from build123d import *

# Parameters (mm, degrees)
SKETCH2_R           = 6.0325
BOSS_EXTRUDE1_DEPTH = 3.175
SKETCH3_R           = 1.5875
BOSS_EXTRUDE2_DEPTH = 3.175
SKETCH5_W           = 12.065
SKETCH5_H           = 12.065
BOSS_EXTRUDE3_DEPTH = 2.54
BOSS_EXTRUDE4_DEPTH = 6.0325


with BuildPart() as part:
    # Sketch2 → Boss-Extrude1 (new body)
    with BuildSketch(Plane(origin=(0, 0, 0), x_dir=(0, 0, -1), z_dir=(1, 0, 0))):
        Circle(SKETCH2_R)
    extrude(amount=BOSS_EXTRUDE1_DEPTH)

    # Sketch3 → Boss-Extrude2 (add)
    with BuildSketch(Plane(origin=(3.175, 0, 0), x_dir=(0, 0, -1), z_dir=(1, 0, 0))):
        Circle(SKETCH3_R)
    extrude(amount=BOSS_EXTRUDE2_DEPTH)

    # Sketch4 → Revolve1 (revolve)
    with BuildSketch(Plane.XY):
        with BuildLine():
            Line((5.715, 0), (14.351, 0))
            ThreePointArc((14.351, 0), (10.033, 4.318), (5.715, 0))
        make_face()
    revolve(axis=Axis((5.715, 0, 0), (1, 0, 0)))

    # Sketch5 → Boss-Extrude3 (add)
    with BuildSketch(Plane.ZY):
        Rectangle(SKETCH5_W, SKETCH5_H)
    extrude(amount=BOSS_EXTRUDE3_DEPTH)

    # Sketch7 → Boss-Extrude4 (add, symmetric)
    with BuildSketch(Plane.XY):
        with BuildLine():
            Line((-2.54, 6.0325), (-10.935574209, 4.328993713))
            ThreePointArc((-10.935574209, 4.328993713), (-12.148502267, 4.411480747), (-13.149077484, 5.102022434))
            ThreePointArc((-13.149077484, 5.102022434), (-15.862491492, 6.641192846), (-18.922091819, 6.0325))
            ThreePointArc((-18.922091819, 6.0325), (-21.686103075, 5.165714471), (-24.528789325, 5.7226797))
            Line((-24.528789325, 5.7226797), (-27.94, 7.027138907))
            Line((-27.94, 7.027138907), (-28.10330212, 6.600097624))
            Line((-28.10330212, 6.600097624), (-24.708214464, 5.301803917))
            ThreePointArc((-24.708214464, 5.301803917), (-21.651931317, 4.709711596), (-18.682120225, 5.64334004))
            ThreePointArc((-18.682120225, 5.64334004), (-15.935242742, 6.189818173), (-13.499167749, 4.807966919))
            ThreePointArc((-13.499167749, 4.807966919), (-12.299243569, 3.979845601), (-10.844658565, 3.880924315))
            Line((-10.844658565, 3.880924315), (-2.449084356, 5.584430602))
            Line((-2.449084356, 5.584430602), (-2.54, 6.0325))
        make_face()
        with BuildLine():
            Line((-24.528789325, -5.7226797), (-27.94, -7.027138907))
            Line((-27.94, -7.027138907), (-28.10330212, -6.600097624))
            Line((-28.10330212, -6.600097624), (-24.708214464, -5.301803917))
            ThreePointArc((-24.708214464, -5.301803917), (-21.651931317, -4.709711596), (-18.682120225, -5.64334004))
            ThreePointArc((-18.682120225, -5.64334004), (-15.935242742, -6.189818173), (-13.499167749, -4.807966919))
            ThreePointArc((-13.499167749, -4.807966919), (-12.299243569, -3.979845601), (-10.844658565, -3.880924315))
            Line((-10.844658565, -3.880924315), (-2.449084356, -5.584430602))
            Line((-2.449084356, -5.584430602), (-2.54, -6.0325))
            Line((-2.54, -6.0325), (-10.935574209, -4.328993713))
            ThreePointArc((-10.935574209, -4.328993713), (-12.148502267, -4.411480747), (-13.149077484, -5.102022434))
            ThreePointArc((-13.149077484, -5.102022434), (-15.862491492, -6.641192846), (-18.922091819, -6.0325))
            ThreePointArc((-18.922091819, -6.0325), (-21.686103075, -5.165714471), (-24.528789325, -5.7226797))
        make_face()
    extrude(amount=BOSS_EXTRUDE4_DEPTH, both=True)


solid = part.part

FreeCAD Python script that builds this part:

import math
import FreeCAD as App
import Part
import Sketcher
Q = App.Units.Quantity

doc = App.newDocument("Part")
body = doc.addObject("PartDesign::Body", "Body")

# Sketch on YZ plane
sketch1 = body.newObject("Sketcher::SketchObject", "Sketch")
sketch1.AttachmentSupport = (doc.getObject("YZ_Plane"), [""])
sketch1.MapMode = "FlatFace"
sketch1.addGeometry(Part.Circle(App.Vector(0, 0, 0), App.Vector(0, 0, 1), 6), False)
sketch1.addConstraint([
    Sketcher.Constraint("Coincident", 0, 3, -1, 1),
    Sketcher.Constraint("Diameter", 0, Q("0.475 in")),
])
pad1 = body.newObject("PartDesign::Pad", "Pad")
pad1.Profile = sketch1
pad1.Length = Q("0.125 in")

# Sketch on YZ plane
sketch2 = body.newObject("Sketcher::SketchObject", "Sketch001")
sketch2.AttachmentSupport = (doc.getObject("YZ_Plane"), [""])
sketch2.MapMode = "FlatFace"
sketch2.AttachmentOffset = App.Placement(App.Vector(0, 0, 0.125 * 25.4), App.Rotation())
sketch2.addGeometry(Part.Circle(App.Vector(0, 0, 0), App.Vector(0, 0, 1), 1.6), False)
sketch2.addConstraint([
    Sketcher.Constraint("Coincident", 0, 3, -1, 1),
    Sketcher.Constraint("Diameter", 0, Q("0.125 in")),
])
pad2 = body.newObject("PartDesign::Pad", "Pad001")
pad2.Profile = sketch2
pad2.Length = Q("0.125 in")

# Sketch on XY plane
sketch3 = body.newObject("Sketcher::SketchObject", "Sketch002")
sketch3.AttachmentSupport = (doc.getObject("XY_Plane"), [""])
sketch3.MapMode = "FlatFace"
sketch3.addGeometry([
    Part.LineSegment(App.Vector(5.7, 0, 0), App.Vector(14.4, 0, 0)),
    Part.ArcOfCircle(Part.Circle(App.Vector(10, 0, 0), App.Vector(0, 0, 1), 4.3), math.radians(0), math.radians(180)),
], False)
sketch3.addConstraint([
    Sketcher.Constraint("Coincident", 0, 1, 1, 2),
    Sketcher.Constraint("Coincident", 1, 1, 0, 2),
    Sketcher.Constraint("Horizontal", 0),
    Sketcher.Constraint("PointOnObject", 1, 3, -1),
    Sketcher.Constraint("PointOnObject", 0, 1, -1),
    Sketcher.Constraint("Radius", 1, Q("0.17 in")),
    Sketcher.Constraint("DistanceX", -1, 1, 1, 3, Q("0.395 in")),
])
revolution = body.newObject("PartDesign::Revolution", "Revolution")
revolution.Profile = sketch3
revolution.ReferenceAxis = (sketch3, ["H_Axis"])
revolution.Angle = 360

# Sketch on YZ plane
sketch4 = body.newObject("Sketcher::SketchObject", "Sketch003")
sketch4.AttachmentSupport = (doc.getObject("YZ_Plane"), [""])
sketch4.MapMode = "FlatFace"
sketch4.addGeometry([
    Part.LineSegment(App.Vector(6, -6, 0), App.Vector(-6, -6, 0)),
    Part.LineSegment(App.Vector(-6, -6, 0), App.Vector(-6, 6, 0)),
    Part.LineSegment(App.Vector(-6, 6, 0), App.Vector(6, 6, 0)),
    Part.LineSegment(App.Vector(6, 6, 0), App.Vector(6, -6, 0)),
], False)
sketch4.addConstraint([
    Sketcher.Constraint("Coincident", 0, 2, 1, 1),
    Sketcher.Constraint("Coincident", 1, 2, 2, 1),
    Sketcher.Constraint("Coincident", 2, 2, 3, 1),
    Sketcher.Constraint("Coincident", 3, 2, 0, 1),
    Sketcher.Constraint("Horizontal", 0),
    Sketcher.Constraint("Vertical", 1),
    Sketcher.Constraint("Horizontal", 2),
    Sketcher.Constraint("Vertical", 3),
    Sketcher.Constraint("Symmetric", 0, 2, 2, 2, -1, 1),
    Sketcher.Constraint("Equal", 2, 1),
    Sketcher.Constraint("DistanceX", 0, 2, 0, 1, Q("0.475 in")),
])
pad3 = body.newObject("PartDesign::Pad", "Pad002")
pad3.Profile = sketch4
pad3.Length = Q("0.1 in")
pad3.Reversed = True

# Sketch on XY plane
sketch5 = body.newObject("Sketcher::SketchObject", "Sketch004")
sketch5.AttachmentSupport = (doc.getObject("XY_Plane"), [""])
sketch5.MapMode = "FlatFace"
sketch5.addGeometry([
    Part.LineSegment(App.Vector(-2.54, 6.03, 0), App.Vector(-10.94, 4.33, 0)),  # 0
    Part.ArcOfCircle(Part.Circle(App.Vector(-11.39, 6.58, 0), App.Vector(0, 0, 1), 2.29), math.radians(-140), math.radians(-79)),  # 1
    Part.ArcOfCircle(Part.Circle(App.Vector(-16.57, 2.23, 0), App.Vector(0, 0, 1), 4.47), math.radians(40), math.radians(122)),  # 2
    Part.ArcOfCircle(Part.Circle(App.Vector(-22.01, 11.04, 0), App.Vector(0, 0, 1), 5.88), math.radians(-115), math.radians(-58)),  # 3
    Part.LineSegment(App.Vector(-24.53, 5.72, 0), App.Vector(-27.94, 7.03, 0)),  # 4
    Part.LineSegment(App.Vector(-27.94, 7.03, 0), App.Vector(-28.1, 6.6, 0)),  # 5
    Part.LineSegment(App.Vector(-28.1, 6.6, 0), App.Vector(-24.71, 5.3, 0)),  # 6
    Part.ArcOfCircle(Part.Circle(App.Vector(-22.01, 11.04, 0), App.Vector(0, 0, 1), 6.34), math.radians(-115), math.radians(-58)),  # 7
    Part.ArcOfCircle(Part.Circle(App.Vector(-16.57, 2.23, 0), App.Vector(0, 0, 1), 4.02), math.radians(40), math.radians(122)),  # 8
    Part.ArcOfCircle(Part.Circle(App.Vector(-11.39, 6.58, 0), App.Vector(0, 0, 1), 2.75), math.radians(-140), math.radians(-79)),  # 9
    Part.LineSegment(App.Vector(-10.84, 3.88, 0), App.Vector(-2.45, 5.58, 0)),  # 10
    Part.LineSegment(App.Vector(-2.45, 5.58, 0), App.Vector(-2.54, 6.03, 0)),  # 11
    Part.LineSegment(App.Vector(-27.94, -7.03, 0), App.Vector(-24.53, -5.72, 0)),  # 12
    Part.ArcOfCircle(Part.Circle(App.Vector(-22.01, -11.04, 0), App.Vector(0, 0, 1), 5.88), math.radians(58), math.radians(115)),  # 13
    Part.ArcOfCircle(Part.Circle(App.Vector(-16.57, -2.23, 0), App.Vector(0, 0, 1), 4.47), math.radians(-122), math.radians(-40)),  # 14
    Part.ArcOfCircle(Part.Circle(App.Vector(-11.39, -6.58, 0), App.Vector(0, 0, 1), 2.29), math.radians(79), math.radians(140)),  # 15
    Part.LineSegment(App.Vector(-10.94, -4.33, 0), App.Vector(-2.54, -6.03, 0)),  # 16
    Part.LineSegment(App.Vector(-2.54, -6.03, 0), App.Vector(-2.45, -5.58, 0)),  # 17
    Part.LineSegment(App.Vector(-2.45, -5.58, 0), App.Vector(-10.84, -3.88, 0)),  # 18
    Part.ArcOfCircle(Part.Circle(App.Vector(-11.39, -6.58, 0), App.Vector(0, 0, 1), 2.75), math.radians(79), math.radians(140)),  # 19
    Part.ArcOfCircle(Part.Circle(App.Vector(-16.57, -2.23, 0), App.Vector(0, 0, 1), 4.02), math.radians(-122), math.radians(-40)),  # 20
    Part.ArcOfCircle(Part.Circle(App.Vector(-22.01, -11.04, 0), App.Vector(0, 0, 1), 6.34), math.radians(58), math.radians(115)),  # 21
    Part.LineSegment(App.Vector(-24.71, -5.3, 0), App.Vector(-28.1, -6.6, 0)),  # 22
    Part.LineSegment(App.Vector(-28.1, -6.6, 0), App.Vector(-27.94, -7.03, 0)),  # 23
], False)
sketch5.addConstraint([
    Sketcher.Constraint("Tangent", 0, 2, 1, 2),
    Sketcher.Constraint("Tangent", 1, 1, 2, 1),
    Sketcher.Constraint("Tangent", 2, 2, 3, 2),
    Sketcher.Constraint("Coincident", 3, 1, 4, 1),
    Sketcher.Constraint("Coincident", 4, 2, 5, 1),
    Sketcher.Constraint("Coincident", 5, 2, 6, 1),
    Sketcher.Constraint("Coincident", 6, 2, 7, 1),
    Sketcher.Constraint("Tangent", 7, 2, 8, 2),
    Sketcher.Constraint("Tangent", 8, 1, 9, 1),
    Sketcher.Constraint("Tangent", 9, 2, 10, 1),
    Sketcher.Constraint("Coincident", 10, 2, 11, 1),
    Sketcher.Constraint("Coincident", 11, 2, 0, 1),
    Sketcher.Constraint("Coincident", 12, 2, 13, 2),
    Sketcher.Constraint("Tangent", 13, 1, 14, 1),
    Sketcher.Constraint("Tangent", 14, 2, 15, 2),
    Sketcher.Constraint("Tangent", 15, 1, 16, 1),
    Sketcher.Constraint("Coincident", 16, 2, 17, 1),
    Sketcher.Constraint("Coincident", 17, 2, 18, 1),
    Sketcher.Constraint("Tangent", 18, 2, 19, 1),
    Sketcher.Constraint("Tangent", 19, 2, 20, 2),
    Sketcher.Constraint("Tangent", 20, 1, 21, 1),
    Sketcher.Constraint("Coincident", 21, 2, 22, 1),
    Sketcher.Constraint("Coincident", 22, 2, 23, 1),
    Sketcher.Constraint("Coincident", 23, 2, 12, 1),
    Sketcher.Constraint("Coincident", 7, 3, 3, 3),
    Sketcher.Constraint("Coincident", 8, 3, 2, 3),
    Sketcher.Constraint("Coincident", 9, 3, 1, 3),
    Sketcher.Constraint("Coincident", 19, 3, 15, 3),
    Sketcher.Constraint("Coincident", 20, 3, 14, 3),
    Sketcher.Constraint("Coincident", 21, 3, 13, 3),
    Sketcher.Constraint("Equal", 3, 13),
    Sketcher.Constraint("Equal", 2, 14),
    Sketcher.Constraint("Equal", 1, 15),
    Sketcher.Constraint("Equal", 9, 19),
    Sketcher.Constraint("Symmetric", 3, 3, 13, 3, -1),
    Sketcher.Constraint("Symmetric", 1, 3, 15, 3, -1),
    Sketcher.Constraint("Symmetric", 11, 2, 16, 2, -1),
    Sketcher.Constraint("Symmetric", 10, 2, 17, 2, -1),
    Sketcher.Constraint("Symmetric", 5, 2, 22, 2, -1),
    Sketcher.Constraint("Symmetric", 4, 2, 23, 2, -1),
    Sketcher.Constraint("Perpendicular", 4, 5),
    Sketcher.Constraint("Perpendicular", 5, 6),
    Sketcher.Constraint("Parallel", 0, 10),
    Sketcher.Constraint("Perpendicular", 10, 11),
    Sketcher.Constraint("Parallel", 12, 22),
    Sketcher.Constraint("Perpendicular", 22, 23),
    Sketcher.Constraint("Horizontal", 2, 2, 11, 2),
    Sketcher.Constraint("Equal", 5, 11),
    Sketcher.Constraint("DistanceX", 4, 2, -1, 1, Q("1.1 in")),
    Sketcher.Constraint("DistanceX", 11, 2, -1, 1, Q("0.1 in")),
    Sketcher.Constraint("Distance", 5, Q("0.018 in")),
    Sketcher.Constraint("DistanceX", 1, 3, -1, 1, Q("0.4485 in")),
    Sketcher.Constraint("DistanceY", -1, 1, 2, 2, Q("0.2375 in")),
    Sketcher.Constraint("Radius", 1, 2.294785),
    Sketcher.Constraint("Radius", 2, 4.473128),
    Sketcher.Constraint("Radius", 3, 5.884663),
    Sketcher.Constraint("DistanceX", 6, 2, 2, 2, Q("0.2278001 in")),
    Sketcher.Constraint("DistanceY", 15, 3, 1, 3, 13.1559),
    Sketcher.Constraint("DistanceX", 3, 1, 3, 3, 2.518001),
    Sketcher.Constraint("Distance", 4, 3.652119),
])
pad4 = body.newObject("PartDesign::Pad", "Pad003")
pad4.Profile = sketch5
pad4.Length = Q("0.475 in")
pad4.Midplane = True

doc.recompute()
